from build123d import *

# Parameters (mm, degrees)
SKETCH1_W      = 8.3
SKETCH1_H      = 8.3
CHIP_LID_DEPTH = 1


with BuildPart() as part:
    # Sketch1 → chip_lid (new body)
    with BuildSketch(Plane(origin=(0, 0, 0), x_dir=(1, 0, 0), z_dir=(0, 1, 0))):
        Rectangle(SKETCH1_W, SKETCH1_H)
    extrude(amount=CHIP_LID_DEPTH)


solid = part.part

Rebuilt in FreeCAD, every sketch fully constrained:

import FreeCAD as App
import Part
import Sketcher
from FreeCAD import Vector


def add_polygon(sketch, points):
    """Adds a closed chain of lines whose ends are joined by coincident constraints."""
    first, n = sketch.GeometryCount, len(points)
    for a, b in zip(points, points[1:] + points[:1]):
        sketch.addGeometry(Part.LineSegment(App.Vector(*a, 0), App.Vector(*b, 0)), False)
    for i in range(n):
        sketch.addConstraint(Sketcher.Constraint("Coincident", first + i, 2, first + (i + 1) % n, 1))

doc = App.newDocument("Part")
body = doc.addObject("PartDesign::Body", "Body")

# Sketch on XZ plane
sketch1 = doc.addObject("Sketcher::SketchObject", "Sketch")
body.addObject(sketch1)
sketch1.AttachmentSupport = (doc.XZ_Plane, [""])
sketch1.MapMode = "FlatFace"
add_polygon(sketch1, [(-4, -4), (-4, 4), (4, 4), (4, -4)])  # lines 0-3
sketch1.addConstraint([
    Sketcher.Constraint("Vertical", 0),
    Sketcher.Constraint("Horizontal", 1),
    Sketcher.Constraint("Vertical", 2),
    Sketcher.Constraint("Horizontal", 3),
    Sketcher.Constraint("Symmetric", 0, 2, 2, 2, -1, 1),
    Sketcher.Constraint("Equal", 3, 0),
    Sketcher.Constraint("DistanceX", 1, 1, 1, 2, 8.3),
])
pad1 = doc.addObject("PartDesign::Pad", "Pad")
body.addObject(pad1)
pad1.Profile = sketch1
pad1.Length = 1
pad1.Reversed = True

doc.recompute()
